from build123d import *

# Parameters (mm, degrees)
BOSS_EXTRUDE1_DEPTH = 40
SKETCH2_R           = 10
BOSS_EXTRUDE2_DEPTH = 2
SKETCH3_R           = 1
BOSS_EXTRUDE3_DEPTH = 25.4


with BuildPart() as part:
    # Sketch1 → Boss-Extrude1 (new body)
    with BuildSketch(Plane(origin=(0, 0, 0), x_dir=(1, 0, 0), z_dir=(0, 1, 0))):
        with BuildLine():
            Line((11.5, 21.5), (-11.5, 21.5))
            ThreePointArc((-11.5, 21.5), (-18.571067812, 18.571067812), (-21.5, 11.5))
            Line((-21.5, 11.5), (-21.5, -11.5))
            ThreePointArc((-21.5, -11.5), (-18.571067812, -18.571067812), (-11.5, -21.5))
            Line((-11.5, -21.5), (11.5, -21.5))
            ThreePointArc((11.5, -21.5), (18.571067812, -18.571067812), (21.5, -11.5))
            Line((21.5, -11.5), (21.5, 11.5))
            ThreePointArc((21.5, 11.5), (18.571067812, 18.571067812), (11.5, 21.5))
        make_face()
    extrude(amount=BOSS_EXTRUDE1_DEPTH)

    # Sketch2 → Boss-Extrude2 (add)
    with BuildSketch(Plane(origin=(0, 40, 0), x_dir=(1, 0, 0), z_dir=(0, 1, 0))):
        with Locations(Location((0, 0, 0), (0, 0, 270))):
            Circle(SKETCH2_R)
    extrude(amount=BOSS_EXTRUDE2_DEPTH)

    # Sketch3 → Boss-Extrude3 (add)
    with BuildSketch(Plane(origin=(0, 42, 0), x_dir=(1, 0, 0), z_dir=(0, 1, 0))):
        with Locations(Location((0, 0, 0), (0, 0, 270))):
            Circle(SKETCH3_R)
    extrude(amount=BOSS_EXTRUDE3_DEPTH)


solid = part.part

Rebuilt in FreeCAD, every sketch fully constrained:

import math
import FreeCAD as App
import Part
import Sketcher

V = App.Vector
Q = App.Units.Quantity

doc = App.newDocument("Part")
body = doc.addObject("PartDesign::Body", "Body")

# Sketch on XZ plane
sketch1 = doc.addObject("Sketcher::SketchObject", "Sketch")
body.addObject(sketch1)
sketch1.AttachmentSupport = (doc.XZ_Plane, [""])
sketch1.MapMode = "FlatFace"
sketch1.addGeometry(Part.LineSegment(V(12, -22, 0), V(-12, -22, 0)), False)
sketch1.addGeometry(Part.ArcOfCircle(Part.Circle(V(-12, -12, 0), V(0, 0, 1), 10), math.radians(180), math.radians(270)), False)
sketch1.addGeometry(Part.LineSegment(V(-22, -12, 0), V(-22, 12, 0)), False)
sketch1.addGeometry(Part.ArcOfCircle(Part.Circle(V(-12, 12, 0), V(0, 0, 1), 10), math.radians(90), math.radians(180)), False)
sketch1.addGeometry(Part.LineSegment(V(-12, 22, 0), V(12, 22, 0)), False)
sketch1.addGeometry(Part.ArcOfCircle(Part.Circle(V(12, 12, 0), V(0, 0, 1), 10), math.radians(0), math.radians(90)), False)
sketch1.addGeometry(Part.LineSegment(V(22, 12, 0), V(22, -12, 0)), False)
sketch1.addGeometry(Part.ArcOfCircle(Part.Circle(V(12, -12, 0), V(0, 0, 1), 10), math.radians(-90), math.radians(0)), False)
sketch1.addConstraint(Sketcher.Constraint("Tangent", 0, 2, 1, 2))
sketch1.addConstraint(Sketcher.Constraint("Tangent", 1, 1, 2, 1))
sketch1.addConstraint(Sketcher.Constraint("Tangent", 2, 2, 3, 2))
sketch1.addConstraint(Sketcher.Constraint("Tangent", 3, 1, 4, 1))
sketch1.addConstraint(Sketcher.Constraint("Tangent", 4, 2, 5, 2))
sketch1.addConstraint(Sketcher.Constraint("Tangent", 5, 1, 6, 1))
sketch1.addConstraint(Sketcher.Constraint("Tangent", 6, 2, 7, 2))
sketch1.addConstraint(Sketcher.Constraint("Tangent", 7, 1, 0, 1))
sketch1.addConstraint(Sketcher.Constraint("Horizontal", 0))
sketch1.addConstraint(Sketcher.Constraint("Vertical", 2))
sketch1.addConstraint(Sketcher.Constraint("Horizontal", 4))
sketch1.addConstraint(Sketcher.Constraint("Vertical", 6))
sketch1.addConstraint(Sketcher.Constraint("Equal", 1, 3))
sketch1.addConstraint(Sketcher.Constraint("Equal", 3, 5))
sketch1.addConstraint(Sketcher.Constraint("Equal", 5, 7))
sketch1.addConstraint(Sketcher.Constraint("Symmetric", 1, 3, 5, 3, -1, 1))
sketch1.addConstraint(Sketcher.Constraint("Equal", 4, 2))
sketch1.addConstraint(Sketcher.Constraint("Radius", 1, Q("10 mm")))
sketch1.addConstraint(Sketcher.Constraint("DistanceX", 0, 2, 0, 1, Q("23 mm")))
pad1 = doc.addObject("PartDesign::Pad", "Pad")
body.addObject(pad1)
pad1.Profile = sketch1
pad1.Length = 40
pad1.Reversed = True

# Sketch on XZ plane
sketch2 = doc.addObject("Sketcher::SketchObject", "Sketch001")
body.addObject(sketch2)
sketch2.AttachmentSupport = (doc.XZ_Plane, [""])
sketch2.MapMode = "FlatFace"
sketch2.AttachmentOffset = App.Placement(V(0, 0, -40), App.Rotation())
sketch2.addGeometry(Part.Circle(V(0, 0, 0), V(0, 0, 1), 10), False)
sketch2.addConstraint(Sketcher.Constraint("Coincident", 0, 3, -1, 1))
sketch2.addConstraint(Sketcher.Constraint("Diameter", 0, Q("20 mm")))
pad2 = doc.addObject("PartDesign::Pad", "Pad001")
body.addObject(pad2)
pad2.Profile = sketch2
pad2.Length = 2
pad2.Reversed = True

# Sketch on XZ plane
sketch3 = doc.addObject("Sketcher::SketchObject", "Sketch002")
body.addObject(sketch3)
sketch3.AttachmentSupport = (doc.XZ_Plane, [""])
sketch3.MapMode = "FlatFace"
sketch3.AttachmentOffset = App.Placement(V(0, 0, -42), App.Rotation())
sketch3.addGeometry(Part.Circle(V(0, 0, 0), V(0, 0, 1), 1), False)
sketch3.addConstraint(Sketcher.Constraint("Coincident", 0, 3, -1, 1))
sketch3.addConstraint(Sketcher.Constraint("Diameter", 0, Q("2 mm")))
pad3 = doc.addObject("PartDesign::Pad", "Pad002")
body.addObject(pad3)
pad3.Profile = sketch3
pad3.Length = 25.4
pad3.Reversed = True

doc.recompute()
